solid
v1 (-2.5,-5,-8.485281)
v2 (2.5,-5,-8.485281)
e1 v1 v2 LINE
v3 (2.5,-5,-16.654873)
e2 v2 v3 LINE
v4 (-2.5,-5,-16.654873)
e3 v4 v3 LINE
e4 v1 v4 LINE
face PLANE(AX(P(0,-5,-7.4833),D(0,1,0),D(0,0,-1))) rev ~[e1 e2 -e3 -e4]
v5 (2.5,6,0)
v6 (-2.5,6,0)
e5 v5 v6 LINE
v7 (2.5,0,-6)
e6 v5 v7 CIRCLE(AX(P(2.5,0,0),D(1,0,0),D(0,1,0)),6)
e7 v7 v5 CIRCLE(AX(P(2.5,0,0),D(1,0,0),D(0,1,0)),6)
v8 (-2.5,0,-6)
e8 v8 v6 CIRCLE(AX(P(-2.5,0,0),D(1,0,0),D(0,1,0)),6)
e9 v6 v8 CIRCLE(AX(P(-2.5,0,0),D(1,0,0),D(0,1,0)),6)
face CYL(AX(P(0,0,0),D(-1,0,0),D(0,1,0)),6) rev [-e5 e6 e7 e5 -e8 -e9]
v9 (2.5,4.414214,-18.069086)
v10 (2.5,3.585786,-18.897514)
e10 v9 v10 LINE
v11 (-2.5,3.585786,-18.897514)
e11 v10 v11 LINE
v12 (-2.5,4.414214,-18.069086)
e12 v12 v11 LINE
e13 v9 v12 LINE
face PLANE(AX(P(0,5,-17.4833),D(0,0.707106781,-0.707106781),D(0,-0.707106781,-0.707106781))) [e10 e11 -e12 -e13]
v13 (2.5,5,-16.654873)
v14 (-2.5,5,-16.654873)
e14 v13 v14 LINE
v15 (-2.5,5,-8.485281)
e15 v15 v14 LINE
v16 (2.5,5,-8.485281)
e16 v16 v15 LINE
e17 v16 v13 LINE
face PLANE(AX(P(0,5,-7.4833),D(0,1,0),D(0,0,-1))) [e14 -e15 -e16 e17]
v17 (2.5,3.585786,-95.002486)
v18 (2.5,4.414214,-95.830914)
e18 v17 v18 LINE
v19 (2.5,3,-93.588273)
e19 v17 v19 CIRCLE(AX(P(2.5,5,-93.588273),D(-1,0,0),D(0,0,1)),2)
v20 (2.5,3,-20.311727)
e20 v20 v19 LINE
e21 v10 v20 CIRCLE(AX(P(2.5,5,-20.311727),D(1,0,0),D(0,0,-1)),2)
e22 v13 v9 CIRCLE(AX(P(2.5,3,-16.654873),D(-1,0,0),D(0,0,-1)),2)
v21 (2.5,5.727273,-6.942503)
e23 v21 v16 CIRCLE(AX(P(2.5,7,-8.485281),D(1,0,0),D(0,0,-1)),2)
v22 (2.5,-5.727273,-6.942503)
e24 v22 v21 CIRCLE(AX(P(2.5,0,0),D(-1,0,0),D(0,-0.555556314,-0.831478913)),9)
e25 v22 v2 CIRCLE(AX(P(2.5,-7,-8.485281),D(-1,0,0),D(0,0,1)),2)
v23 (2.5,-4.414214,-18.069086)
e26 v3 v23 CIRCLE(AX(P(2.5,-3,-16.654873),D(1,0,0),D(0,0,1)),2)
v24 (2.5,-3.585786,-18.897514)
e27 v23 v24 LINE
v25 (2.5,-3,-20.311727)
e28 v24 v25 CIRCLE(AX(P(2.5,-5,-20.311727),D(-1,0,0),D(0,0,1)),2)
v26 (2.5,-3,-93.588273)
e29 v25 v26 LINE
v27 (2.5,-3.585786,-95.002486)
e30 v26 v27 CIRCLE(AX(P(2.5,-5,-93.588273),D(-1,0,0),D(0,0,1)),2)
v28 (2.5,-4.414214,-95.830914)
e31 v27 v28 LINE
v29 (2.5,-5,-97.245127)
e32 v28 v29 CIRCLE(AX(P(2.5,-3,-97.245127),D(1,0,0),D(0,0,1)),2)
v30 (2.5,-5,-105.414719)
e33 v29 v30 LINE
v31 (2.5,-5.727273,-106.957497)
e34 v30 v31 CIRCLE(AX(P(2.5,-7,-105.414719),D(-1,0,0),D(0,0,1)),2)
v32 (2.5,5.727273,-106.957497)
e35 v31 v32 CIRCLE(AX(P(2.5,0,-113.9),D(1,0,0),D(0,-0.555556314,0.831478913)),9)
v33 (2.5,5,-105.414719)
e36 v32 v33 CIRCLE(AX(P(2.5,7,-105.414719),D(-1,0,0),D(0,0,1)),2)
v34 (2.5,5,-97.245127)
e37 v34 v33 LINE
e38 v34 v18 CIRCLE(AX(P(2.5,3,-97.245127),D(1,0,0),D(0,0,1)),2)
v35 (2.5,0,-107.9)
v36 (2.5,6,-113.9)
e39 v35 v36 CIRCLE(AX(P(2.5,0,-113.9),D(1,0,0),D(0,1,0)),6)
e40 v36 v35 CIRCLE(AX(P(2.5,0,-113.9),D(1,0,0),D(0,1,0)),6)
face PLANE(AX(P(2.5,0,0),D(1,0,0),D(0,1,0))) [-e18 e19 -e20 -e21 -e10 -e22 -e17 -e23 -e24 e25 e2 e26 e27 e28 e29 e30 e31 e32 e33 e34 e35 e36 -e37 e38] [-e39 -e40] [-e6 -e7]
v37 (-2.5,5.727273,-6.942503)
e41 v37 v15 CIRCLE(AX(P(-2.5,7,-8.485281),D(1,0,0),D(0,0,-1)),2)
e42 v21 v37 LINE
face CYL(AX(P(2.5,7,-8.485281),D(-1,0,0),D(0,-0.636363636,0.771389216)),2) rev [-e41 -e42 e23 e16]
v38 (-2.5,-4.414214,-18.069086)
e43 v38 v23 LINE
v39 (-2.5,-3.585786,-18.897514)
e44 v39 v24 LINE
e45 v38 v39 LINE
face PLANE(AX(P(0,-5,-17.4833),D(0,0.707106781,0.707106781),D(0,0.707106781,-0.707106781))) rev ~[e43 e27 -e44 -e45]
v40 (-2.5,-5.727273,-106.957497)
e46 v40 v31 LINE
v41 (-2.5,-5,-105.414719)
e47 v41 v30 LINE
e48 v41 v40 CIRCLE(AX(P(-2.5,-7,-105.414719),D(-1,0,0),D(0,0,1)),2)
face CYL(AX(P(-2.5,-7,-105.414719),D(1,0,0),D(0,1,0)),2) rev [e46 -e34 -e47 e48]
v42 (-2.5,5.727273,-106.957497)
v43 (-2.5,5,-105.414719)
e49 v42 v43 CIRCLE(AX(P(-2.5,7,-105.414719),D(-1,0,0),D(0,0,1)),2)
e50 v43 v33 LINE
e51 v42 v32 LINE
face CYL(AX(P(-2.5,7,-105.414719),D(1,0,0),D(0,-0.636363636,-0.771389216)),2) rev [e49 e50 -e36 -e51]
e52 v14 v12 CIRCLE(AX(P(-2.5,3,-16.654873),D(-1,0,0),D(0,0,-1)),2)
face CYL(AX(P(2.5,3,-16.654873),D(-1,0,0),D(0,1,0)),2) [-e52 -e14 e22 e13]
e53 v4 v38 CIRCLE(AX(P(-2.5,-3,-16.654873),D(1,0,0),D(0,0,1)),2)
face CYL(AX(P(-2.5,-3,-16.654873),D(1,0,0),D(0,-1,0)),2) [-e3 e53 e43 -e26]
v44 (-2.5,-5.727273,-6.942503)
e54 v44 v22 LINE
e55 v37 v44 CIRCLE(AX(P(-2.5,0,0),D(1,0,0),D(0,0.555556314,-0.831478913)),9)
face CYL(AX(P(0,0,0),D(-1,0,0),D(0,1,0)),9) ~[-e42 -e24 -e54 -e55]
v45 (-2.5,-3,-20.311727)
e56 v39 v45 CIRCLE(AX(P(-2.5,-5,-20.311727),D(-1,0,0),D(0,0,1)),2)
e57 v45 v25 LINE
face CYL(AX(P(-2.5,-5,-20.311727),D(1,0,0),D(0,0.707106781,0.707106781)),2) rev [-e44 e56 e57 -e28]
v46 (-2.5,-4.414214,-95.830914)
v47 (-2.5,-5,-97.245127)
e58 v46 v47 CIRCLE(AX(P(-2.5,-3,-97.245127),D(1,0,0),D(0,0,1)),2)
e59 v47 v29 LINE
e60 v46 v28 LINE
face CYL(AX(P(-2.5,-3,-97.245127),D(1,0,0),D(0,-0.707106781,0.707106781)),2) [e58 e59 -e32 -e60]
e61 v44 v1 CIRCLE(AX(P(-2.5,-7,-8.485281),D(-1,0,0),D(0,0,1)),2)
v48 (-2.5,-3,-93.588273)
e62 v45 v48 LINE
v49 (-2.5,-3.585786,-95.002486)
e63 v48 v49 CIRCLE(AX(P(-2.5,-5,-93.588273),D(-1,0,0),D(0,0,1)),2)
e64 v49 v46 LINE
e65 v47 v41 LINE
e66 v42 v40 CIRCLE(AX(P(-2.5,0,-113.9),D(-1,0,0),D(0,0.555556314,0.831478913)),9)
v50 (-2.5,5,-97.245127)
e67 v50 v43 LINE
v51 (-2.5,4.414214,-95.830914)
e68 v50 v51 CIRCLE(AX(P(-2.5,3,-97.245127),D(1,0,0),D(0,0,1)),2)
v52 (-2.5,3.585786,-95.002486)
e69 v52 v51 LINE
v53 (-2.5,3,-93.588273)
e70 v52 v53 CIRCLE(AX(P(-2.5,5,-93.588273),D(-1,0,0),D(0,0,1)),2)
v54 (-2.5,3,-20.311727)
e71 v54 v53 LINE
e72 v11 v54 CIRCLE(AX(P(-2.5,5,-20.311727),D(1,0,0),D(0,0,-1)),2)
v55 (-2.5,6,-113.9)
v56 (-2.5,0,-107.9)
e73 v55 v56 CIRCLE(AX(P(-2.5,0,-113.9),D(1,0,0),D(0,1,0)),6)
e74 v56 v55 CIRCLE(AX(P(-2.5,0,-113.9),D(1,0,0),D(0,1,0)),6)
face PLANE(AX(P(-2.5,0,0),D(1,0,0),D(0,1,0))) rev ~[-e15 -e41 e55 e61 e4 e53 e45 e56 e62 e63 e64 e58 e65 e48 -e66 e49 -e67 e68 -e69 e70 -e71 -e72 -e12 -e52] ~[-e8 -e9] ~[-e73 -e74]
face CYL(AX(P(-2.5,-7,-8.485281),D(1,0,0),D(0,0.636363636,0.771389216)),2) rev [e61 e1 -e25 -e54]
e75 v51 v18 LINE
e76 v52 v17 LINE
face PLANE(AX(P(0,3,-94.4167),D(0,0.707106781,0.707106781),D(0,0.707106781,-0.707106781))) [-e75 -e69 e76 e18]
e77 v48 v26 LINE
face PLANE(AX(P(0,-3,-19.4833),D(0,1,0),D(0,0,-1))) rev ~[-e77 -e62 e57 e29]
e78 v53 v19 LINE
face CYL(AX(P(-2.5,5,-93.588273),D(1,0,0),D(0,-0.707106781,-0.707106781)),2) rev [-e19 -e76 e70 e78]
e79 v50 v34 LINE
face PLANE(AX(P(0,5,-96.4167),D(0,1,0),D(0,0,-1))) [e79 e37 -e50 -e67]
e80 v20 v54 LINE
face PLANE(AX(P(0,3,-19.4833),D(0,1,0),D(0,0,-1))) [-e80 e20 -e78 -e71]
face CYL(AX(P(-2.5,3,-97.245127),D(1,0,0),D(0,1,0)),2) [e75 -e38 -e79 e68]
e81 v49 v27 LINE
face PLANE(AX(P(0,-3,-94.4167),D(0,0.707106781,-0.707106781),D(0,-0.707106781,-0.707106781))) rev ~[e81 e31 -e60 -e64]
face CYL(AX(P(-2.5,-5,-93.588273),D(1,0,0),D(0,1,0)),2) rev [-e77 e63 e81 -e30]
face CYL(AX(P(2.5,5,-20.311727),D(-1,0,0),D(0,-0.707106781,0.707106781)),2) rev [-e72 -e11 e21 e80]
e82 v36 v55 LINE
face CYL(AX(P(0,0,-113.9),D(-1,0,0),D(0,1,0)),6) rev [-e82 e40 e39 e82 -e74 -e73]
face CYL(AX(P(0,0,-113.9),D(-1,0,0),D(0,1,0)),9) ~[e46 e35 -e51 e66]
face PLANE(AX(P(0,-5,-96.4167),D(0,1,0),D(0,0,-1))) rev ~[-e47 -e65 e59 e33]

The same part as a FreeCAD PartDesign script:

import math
import FreeCAD as App
import Part
import Sketcher
Q = App.Units.Quantity


def edges_at(feature, points):
    """Names of the edges that pass closest to the given points."""
    edges = feature.Shape.Edges
    near = lambda p: min(range(len(edges)), key=lambda i: edges[i].distToShape(Part.Vertex(*p))[0])
    return sorted({f"Edge{near(p) + 1}" for p in points})

doc = App.newDocument("Part")
params = doc.addObject("Spreadsheet::Sheet", "Params")
for row, (alias, value) in enumerate([
    ("sketch1_diameter", "12 mm"),
    ("sketch1_radius", "9 mm"),
    ("sketch1_height", "10 mm"),
    ("pad1_length", "5 mm"),
    ("fillet_radius", "2 mm"),
], start=1):
    params.set(f"A{row}", alias)
    params.set(f"B{row}", "=" + value)
    params.setAlias(f"B{row}", alias)

body = doc.addObject("PartDesign::Body", "Body")

sketch1 = doc.addObject("Sketcher::SketchObject", "Sketch")
body.addObject(sketch1)
sketch1.AttachmentSupport = (doc.YZ_Plane, [""])
sketch1.MapMode = "FlatFace"
sketch1.addGeometry([
    Part.LineSegment(App.Vector(-5, -7.5, 0), App.Vector(-5, -17.5, 0)),
    Part.LineSegment(App.Vector(-5, -17.5, 0), App.Vector(-3, -19.5, 0)),
    Part.LineSegment(App.Vector(-3, -19.5, 0), App.Vector(-3, -94.4, 0)),
    Part.LineSegment(App.Vector(-3, -94.4, 0), App.Vector(-5, -96.4, 0)),
    Part.LineSegment(App.Vector(-5, -96.4, 0), App.Vector(-5, -106.4, 0)),
    Part.ArcOfCircle(Part.Circle(App.Vector(0, -113.9, 0), App.Vector(0, 0, 1), 9), math.radians(124), math.radians(416)),
    Part.LineSegment(App.Vector(5, -106.4, 0), App.Vector(5, -96.4, 0)),
    Part.LineSegment(App.Vector(5, -96.4, 0), App.Vector(3, -94.4, 0)),
    Part.LineSegment(App.Vector(3, -94.4, 0), App.Vector(3, -19.5, 0)),
    Part.LineSegment(App.Vector(3, -19.5, 0), App.Vector(5, -17.5, 0)),
    Part.LineSegment(App.Vector(5, -17.5, 0), App.Vector(5, -7.5, 0)),
    Part.ArcOfCircle(Part.Circle(App.Vector(0, 0, 0), App.Vector(0, 0, 1), 9), math.radians(-56), math.radians(236)),
    Part.Circle(App.Vector(0, 0, 0), App.Vector(0, 0, 1), 6),
    Part.Circle(App.Vector(0, -113.9, 0), App.Vector(0, 0, 1), 6),
], False)
sketch1.addConstraint([
    Sketcher.Constraint("Coincident", 0, 2, 1, 1),
    Sketcher.Constraint("Coincident", 1, 2, 2, 1),
    Sketcher.Constraint("Coincident", 2, 2, 3, 1),
    Sketcher.Constraint("Coincident", 3, 2, 4, 1),
    Sketcher.Constraint("Coincident", 4, 2, 5, 1),
    Sketcher.Constraint("Coincident", 5, 2, 6, 1),
    Sketcher.Constraint("Coincident", 6, 2, 7, 1),
    Sketcher.Constraint("Coincident", 7, 2, 8, 1),
    Sketcher.Constraint("Coincident", 8, 2, 9, 1),
    Sketcher.Constraint("Coincident", 9, 2, 10, 1),
    Sketcher.Constraint("Coincident", 10, 2, 11, 1),
    Sketcher.Constraint("Coincident", 11, 2, 0, 1),
    Sketcher.Constraint("Vertical", 0),
    Sketcher.Constraint("Vertical", 2),
    Sketcher.Constraint("Vertical", 4),
    Sketcher.Constraint("Vertical", 6),
    Sketcher.Constraint("Vertical", 8),
    Sketcher.Constraint("Vertical", 10),
    Sketcher.Constraint("Coincident", 11, 3, -1, 1),
    Sketcher.Constraint("Coincident", 12, 3, -1, 1),
    Sketcher.Constraint("Coincident", 13, 3, 5, 3),
    Sketcher.Constraint("Equal", 5, 11),
    Sketcher.Constraint("Equal", 12, 13),
    Sketcher.Constraint("Symmetric", 4, 2, 5, 2, -2),
    Sketcher.Constraint("Symmetric", 2, 2, 7, 2, -2),
    Sketcher.Constraint("Symmetric", 0, 2, 9, 2, -2),
    Sketcher.Constraint("Perpendicular", 1, 3),
    Sketcher.Constraint("Perpendicular", 3, 7),
    Sketcher.Constraint("Perpendicular", 7, 9),
    Sketcher.Constraint("Horizontal", 3, 2, 6, 2),
    Sketcher.Constraint("Vertical", 0, 2, 3, 2),
    Sketcher.Constraint("Equal", 0, 4),
    Sketcher.Constraint("Diameter", 12, Q("12 mm")),
    Sketcher.Constraint("Radius", 5, Q("9 mm")),
    Sketcher.Constraint("DistanceY", 0, 2, 0, 1, Q("10 mm")),
    Sketcher.Constraint("DistanceX", 0, 2, -1, 1, Q("5 mm")),
    Sketcher.Constraint("DistanceX", 1, 2, -1, 1, Q("3 mm")),
    Sketcher.Constraint("DistanceY", 5, 3, -1, 1, Q("113.9 mm")),
])
sketch1.setExpression("Constraints[32]", "Params.sketch1_diameter")
sketch1.setExpression("Constraints[33]", "Params.sketch1_radius")
sketch1.setExpression("Constraints[34]", "Params.sketch1_height")
pad1 = doc.addObject("PartDesign::Pad", "Pad")
body.addObject(pad1)
pad1.Profile = sketch1
pad1.setExpression("Length", "Params.pad1_length")
pad1.Midplane = True
doc.recompute()

fillet = doc.addObject("PartDesign::Fillet", "Fillet")
body.addObject(fillet)
fillet.Base = (pad1, edges_at(pad1, [
    (0, 5, -7.483),
    (0, 5, -17.483),
    (0, 3, -19.483),
    (0, 3, -94.417),
    (0, 5, -96.417),
    (0, 5, -106.417),
    (0, -5, -7.483),
    (0, -5, -17.483),
    (0, -3, -19.483),
    (0, -3, -94.417),
    (0, -5, -96.417),
    (0, -5, -106.417),
]))
fillet.setExpression("Radius", "Params.fillet_radius")

doc.recompute()
